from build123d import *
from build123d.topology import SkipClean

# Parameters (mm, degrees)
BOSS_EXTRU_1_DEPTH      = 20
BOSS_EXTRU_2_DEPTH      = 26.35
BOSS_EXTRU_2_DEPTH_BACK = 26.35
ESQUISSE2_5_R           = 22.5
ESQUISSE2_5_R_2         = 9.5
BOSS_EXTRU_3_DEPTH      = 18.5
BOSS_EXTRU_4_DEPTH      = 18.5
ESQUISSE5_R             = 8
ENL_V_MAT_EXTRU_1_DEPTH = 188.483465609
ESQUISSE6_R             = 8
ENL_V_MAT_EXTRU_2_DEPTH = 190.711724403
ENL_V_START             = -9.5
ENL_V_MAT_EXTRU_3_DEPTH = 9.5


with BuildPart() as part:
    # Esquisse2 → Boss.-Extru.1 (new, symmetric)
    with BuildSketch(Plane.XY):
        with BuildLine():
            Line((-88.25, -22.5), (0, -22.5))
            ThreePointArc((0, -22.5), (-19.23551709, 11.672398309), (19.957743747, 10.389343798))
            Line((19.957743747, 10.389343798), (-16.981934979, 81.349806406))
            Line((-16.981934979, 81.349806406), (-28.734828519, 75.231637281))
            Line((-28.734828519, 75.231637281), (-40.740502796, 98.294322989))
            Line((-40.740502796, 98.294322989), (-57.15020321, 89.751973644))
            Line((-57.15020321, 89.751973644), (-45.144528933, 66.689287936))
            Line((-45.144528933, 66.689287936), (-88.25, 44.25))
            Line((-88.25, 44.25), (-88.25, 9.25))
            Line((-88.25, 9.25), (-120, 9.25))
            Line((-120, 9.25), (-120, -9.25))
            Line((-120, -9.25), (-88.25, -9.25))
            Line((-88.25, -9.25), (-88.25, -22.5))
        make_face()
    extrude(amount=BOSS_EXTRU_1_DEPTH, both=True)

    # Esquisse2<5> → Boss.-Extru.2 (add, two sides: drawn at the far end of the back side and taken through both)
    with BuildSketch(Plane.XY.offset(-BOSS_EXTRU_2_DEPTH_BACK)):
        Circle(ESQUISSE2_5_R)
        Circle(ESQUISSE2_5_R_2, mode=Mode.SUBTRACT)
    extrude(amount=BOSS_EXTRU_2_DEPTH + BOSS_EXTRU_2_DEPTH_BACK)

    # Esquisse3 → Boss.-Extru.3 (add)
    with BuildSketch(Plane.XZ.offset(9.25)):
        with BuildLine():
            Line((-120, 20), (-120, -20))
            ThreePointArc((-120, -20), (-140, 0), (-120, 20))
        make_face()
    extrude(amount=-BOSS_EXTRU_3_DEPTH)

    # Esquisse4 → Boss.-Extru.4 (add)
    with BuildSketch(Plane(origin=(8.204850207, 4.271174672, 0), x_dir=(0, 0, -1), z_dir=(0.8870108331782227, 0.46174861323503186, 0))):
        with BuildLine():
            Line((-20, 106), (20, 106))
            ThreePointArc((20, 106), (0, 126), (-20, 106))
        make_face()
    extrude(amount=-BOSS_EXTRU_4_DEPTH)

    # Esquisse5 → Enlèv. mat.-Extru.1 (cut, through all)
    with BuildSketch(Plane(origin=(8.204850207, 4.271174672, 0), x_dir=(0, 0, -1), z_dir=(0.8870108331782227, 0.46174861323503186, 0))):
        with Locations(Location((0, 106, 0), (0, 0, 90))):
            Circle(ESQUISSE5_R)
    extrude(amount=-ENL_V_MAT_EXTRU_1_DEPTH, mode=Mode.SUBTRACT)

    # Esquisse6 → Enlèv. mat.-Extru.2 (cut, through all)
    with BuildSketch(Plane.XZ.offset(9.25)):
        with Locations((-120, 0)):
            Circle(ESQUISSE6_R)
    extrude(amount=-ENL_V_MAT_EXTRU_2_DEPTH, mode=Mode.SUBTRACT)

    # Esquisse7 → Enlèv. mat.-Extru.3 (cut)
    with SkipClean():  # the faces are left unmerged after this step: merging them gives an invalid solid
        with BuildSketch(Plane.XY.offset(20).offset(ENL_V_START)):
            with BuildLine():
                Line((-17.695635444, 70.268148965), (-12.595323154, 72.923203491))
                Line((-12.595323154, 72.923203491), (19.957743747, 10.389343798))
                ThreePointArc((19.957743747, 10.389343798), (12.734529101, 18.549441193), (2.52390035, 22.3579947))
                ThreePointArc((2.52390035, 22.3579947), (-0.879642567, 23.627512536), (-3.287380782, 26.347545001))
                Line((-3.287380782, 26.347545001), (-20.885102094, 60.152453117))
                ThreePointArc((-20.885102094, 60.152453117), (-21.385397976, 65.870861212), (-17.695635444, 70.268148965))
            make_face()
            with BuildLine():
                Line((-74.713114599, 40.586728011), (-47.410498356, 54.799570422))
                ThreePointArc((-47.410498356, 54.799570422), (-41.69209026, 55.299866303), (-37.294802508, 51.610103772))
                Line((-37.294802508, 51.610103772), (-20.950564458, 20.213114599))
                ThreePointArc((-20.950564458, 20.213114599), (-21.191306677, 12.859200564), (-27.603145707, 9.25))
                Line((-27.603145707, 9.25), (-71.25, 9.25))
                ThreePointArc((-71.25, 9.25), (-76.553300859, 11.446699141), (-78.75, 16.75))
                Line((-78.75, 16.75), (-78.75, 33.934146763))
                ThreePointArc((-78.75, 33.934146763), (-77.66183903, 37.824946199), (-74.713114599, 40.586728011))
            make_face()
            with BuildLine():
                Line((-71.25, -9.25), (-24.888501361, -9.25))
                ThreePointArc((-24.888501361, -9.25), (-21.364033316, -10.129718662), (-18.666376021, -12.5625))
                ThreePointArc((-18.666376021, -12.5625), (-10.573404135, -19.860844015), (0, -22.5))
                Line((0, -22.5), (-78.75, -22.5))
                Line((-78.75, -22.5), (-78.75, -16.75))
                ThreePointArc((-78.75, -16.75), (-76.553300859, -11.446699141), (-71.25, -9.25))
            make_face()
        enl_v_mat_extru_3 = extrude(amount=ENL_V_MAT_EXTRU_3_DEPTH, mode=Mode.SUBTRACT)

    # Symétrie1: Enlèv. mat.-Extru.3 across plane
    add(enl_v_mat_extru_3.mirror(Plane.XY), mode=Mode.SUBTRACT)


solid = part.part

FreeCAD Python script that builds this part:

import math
import FreeCAD as App
import Part
import Sketcher
Q = App.Units.Quantity

doc = App.newDocument("Part")
body = doc.addObject("PartDesign::Body", "Body")

# Sketch on XY plane
sketch1 = body.newObject("Sketcher::SketchObject", "Sketch")
sketch1.AttachmentSupport = (doc.getObject("XY_Plane"), [""])
sketch1.MapMode = "FlatFace"
sketch1.addGeometry([
    Part.LineSegment(App.Vector(-88, -22, 0), App.Vector(0, -22, 0)),  # 0
    Part.ArcOfCircle(Part.Circle(App.Vector(0, 0, 0), App.Vector(0, 0, 1), 22), math.radians(27), math.radians(270)),  # 1
    Part.LineSegment(App.Vector(20, 10, 0), App.Vector(-17, 81, 0)),  # 2
    Part.LineSegment(App.Vector(-17, 81, 0), App.Vector(-29, 75, 0)),  # 3
    Part.LineSegment(App.Vector(-29, 75, 0), App.Vector(-41, 98, 0)),  # 4
    Part.LineSegment(App.Vector(-41, 98, 0), App.Vector(-57, 90, 0)),  # 5
    Part.LineSegment(App.Vector(-57, 90, 0), App.Vector(-45, 67, 0)),  # 6
    Part.LineSegment(App.Vector(-45, 67, 0), App.Vector(-88, 44, 0)),  # 7
    Part.LineSegment(App.Vector(-88, 44, 0), App.Vector(-88, 9, 0)),  # 8
    Part.LineSegment(App.Vector(-88, 9, 0), App.Vector(-120, 9, 0)),  # 9
    Part.LineSegment(App.Vector(-120, 9, 0), App.Vector(-120, -9, 0)),  # 10
    Part.LineSegment(App.Vector(-120, -9, 0), App.Vector(-88, -9, 0)),  # 11
    Part.LineSegment(App.Vector(-88, -9, 0), App.Vector(-88, -22, 0)),  # 12
], False)
sketch1.addConstraint([
    Sketcher.Constraint("Tangent", 0, 2, 1, 2),
    Sketcher.Constraint("Tangent", 1, 1, 2, 1),
    Sketcher.Constraint("Coincident", 2, 2, 3, 1),
    Sketcher.Constraint("Coincident", 3, 2, 4, 1),
    Sketcher.Constraint("Coincident", 4, 2, 5, 1),
    Sketcher.Constraint("Coincident", 5, 2, 6, 1),
    Sketcher.Constraint("Coincident", 6, 2, 7, 1),
    Sketcher.Constraint("Coincident", 7, 2, 8, 1),
    Sketcher.Constraint("Coincident", 8, 2, 9, 1),
    Sketcher.Constraint("Coincident", 9, 2, 10, 1),
    Sketcher.Constraint("Coincident", 10, 2, 11, 1),
    Sketcher.Constraint("Coincident", 11, 2, 12, 1),
    Sketcher.Constraint("Coincident", 12, 2, 0, 1),
    Sketcher.Constraint("Horizontal", 0),
    Sketcher.Constraint("Vertical", 8),
    Sketcher.Constraint("Horizontal", 9),
    Sketcher.Constraint("Vertical", 10),
    Sketcher.Constraint("Horizontal", 11),
    Sketcher.Constraint("Vertical", 12),
    Sketcher.Constraint("Coincident", 1, 3, -1, 1),
    Sketcher.Constraint("Symmetric", 8, 2, 11, 2, -1),
    Sketcher.Constraint("Perpendicular", 2, 3),
    Sketcher.Constraint("Perpendicular", 3, 4),
    Sketcher.Constraint("Perpendicular", 4, 5),
    Sketcher.Constraint("Perpendicular", 5, 6),
    Sketcher.Constraint("Perpendicular", 6, 7),
    Sketcher.Constraint("Equal", 4, 6),
    Sketcher.Constraint("Radius", 1, 22.5),
    Sketcher.Constraint("DistanceY", 8, 2, 8, 1, 35.0),
    Sketcher.Constraint("DistanceY", 10, 2, 10, 1, 18.5),
    Sketcher.Constraint("DistanceX", 9, 2, -1, 1, 120.0),
    Sketcher.Constraint("Angle", 2, Q("117.5 deg")),
    Sketcher.Constraint("Distance", 5, 18.5),
    Sketcher.Constraint("DistanceX", 0, 1, 0, 2, 88.25),
    Sketcher.Constraint("Distance", 3, 13.25),
    Sketcher.Constraint("DistanceY", 1, 1, 4, 2, 87.904979),
])
pad1 = body.newObject("PartDesign::Pad", "Pad")
pad1.Profile = sketch1
pad1.Length = 40
pad1.Midplane = True

# Sketch on XY plane
sketch2 = body.newObject("Sketcher::SketchObject", "Sketch001")
sketch2.AttachmentSupport = (doc.getObject("XY_Plane"), [""])
sketch2.MapMode = "FlatFace"
sketch2.addGeometry([
    Part.Circle(App.Vector(0, 0, 0), App.Vector(0, 0, 1), 22),
    Part.Circle(App.Vector(0, 0, 0), App.Vector(0, 0, 1), 10),
], False)
sketch2.addConstraint([
    Sketcher.Constraint("Coincident", 0, 3, -1, 1),
    Sketcher.Constraint("Coincident", 1, 3, -1, 1),
    Sketcher.Constraint("Diameter", 0, 45.0),
    Sketcher.Constraint("Diameter", 1, 19.0),
])
pad2 = body.newObject("PartDesign::Pad", "Pad001")
pad2.Profile = sketch2
pad2.Type = "TwoLengths"
pad2.Length = 26.35
pad2.Length2 = 26.35

# Sketch on XZ plane
sketch3 = body.newObject("Sketcher::SketchObject", "Sketch002")
sketch3.AttachmentSupport = (doc.getObject("XZ_Plane"), [""])
sketch3.MapMode = "FlatFace"
sketch3.AttachmentOffset = App.Placement(App.Vector(0, 0, 9.25), App.Rotation())
sketch3.addGeometry([
    Part.LineSegment(App.Vector(-120, -20, 0), App.Vector(-120, 20, 0)),
    Part.ArcOfCircle(Part.Circle(App.Vector(-120, 0, 0), App.Vector(0, 0, 1), 20), math.radians(90), math.radians(270)),
], False)
sketch3.addConstraint([
    Sketcher.Constraint("Coincident", 0, 1, 1, 2),
    Sketcher.Constraint("Coincident", 1, 1, 0, 2),
    Sketcher.Constraint("Vertical", 0),
    Sketcher.Constraint("PointOnObject", 1, 3, -1),
    Sketcher.Constraint("Vertical", 1, 3, 0, 1),
    Sketcher.Constraint("Radius", 1, 20.0),
    Sketcher.Constraint("DistanceX", 1, 3, -1, 1, 120.0),
])
pad3 = body.newObject("PartDesign::Pad", "Pad002")
pad3.Profile = sketch3
pad3.Length = 18.5
pad3.Reversed = True

# Sketch on an angled plane
sketch4 = body.newObject("Sketcher::SketchObject", "Sketch003")
sketch4.Placement = App.Placement(App.Vector(8.20485, 4.271175, 0), App.Rotation(App.Vector(0, 0, -1), App.Vector(-0.461748613, 0.887010833, 0), App.Vector(0.887010833, 0.461748613, 0), "ZXY"))
sketch4.addGeometry([
    Part.LineSegment(App.Vector(-20, 106, 0), App.Vector(20, 106, 0)),
    Part.ArcOfCircle(Part.Circle(App.Vector(0, 106, 0), App.Vector(0, 0, 1), 20), math.radians(0), math.radians(180)),
], False)
sketch4.addConstraint([
    Sketcher.Constraint("Coincident", 0, 1, 1, 2),
    Sketcher.Constraint("Coincident", 1, 1, 0, 2),
    Sketcher.Constraint("Horizontal", 0),
    Sketcher.Constraint("PointOnObject", 1, 3, -2),
    Sketcher.Constraint("Horizontal", 1, 3, 0, 1),
    Sketcher.Constraint("Radius", 1, 20.0),
    Sketcher.Constraint("DistanceY", -1, 1, 1, 3, 106.0),
])
pad4 = body.newObject("PartDesign::Pad", "Pad003")
pad4.Profile = sketch4
pad4.Length = 18.5
pad4.Reversed = True

# Sketch on an angled plane
sketch5 = body.newObject("Sketcher::SketchObject", "Sketch004")
sketch5.Placement = App.Placement(App.Vector(8.20485, 4.271175, 0), App.Rotation(App.Vector(0, 0, -1), App.Vector(-0.461748613, 0.887010833, 0), App.Vector(0.887010833, 0.461748613, 0), "ZXY"))
sketch5.addGeometry(Part.Circle(App.Vector(0, 106, 0), App.Vector(0, 0, 1), 8), False)
sketch5.addConstraint([
    Sketcher.Constraint("PointOnObject", 0, 3, -2),
    Sketcher.Constraint("Diameter", 0, 16.0),
    Sketcher.Constraint("DistanceY", -1, 1, 0, 3, 106.0),
])
pocket1 = body.newObject("PartDesign::Pocket", "Pocket")
pocket1.Profile = sketch5
pocket1.Type = "ThroughAll"

# Sketch on XZ plane
sketch6 = body.newObject("Sketcher::SketchObject", "Sketch005")
sketch6.AttachmentSupport = (doc.getObject("XZ_Plane"), [""])
sketch6.MapMode = "FlatFace"
sketch6.AttachmentOffset = App.Placement(App.Vector(0, 0, 9.25), App.Rotation())
sketch6.addGeometry(Part.Circle(App.Vector(-120, 0, 0), App.Vector(0, 0, 1), 8), False)
sketch6.addConstraint([
    Sketcher.Constraint("PointOnObject", 0, 3, -1),
    Sketcher.Constraint("Diameter", 0, 16.0),
    Sketcher.Constraint("DistanceX", 0, 3, -1, 1, 120.0),
])
pocket2 = body.newObject("PartDesign::Pocket", "Pocket001")
pocket2.Profile = sketch6
pocket2.Type = "ThroughAll"

# Sketch on XY plane
sketch7 = body.newObject("Sketcher::SketchObject", "Sketch006")
sketch7.AttachmentSupport = (doc.getObject("XY_Plane"), [""])
sketch7.MapMode = "FlatFace"
sketch7.AttachmentOffset = App.Placement(App.Vector(0, 0, 10.5), App.Rotation())
sketch7.addGeometry([
    Part.LineSegment(App.Vector(-13, 73, 0), App.Vector(-18, 70, 0)),  # 0
    Part.ArcOfCircle(Part.Circle(App.Vector(-14, 64, 0), App.Vector(0, 0, 1), 7), math.radians(117), math.radians(208)),  # 1
    Part.LineSegment(App.Vector(-21, 60, 0), App.Vector(-3, 26, 0)),  # 2
    Part.ArcOfCircle(Part.Circle(App.Vector(3, 30, 0), App.Vector(0, 0, 1), 8), math.radians(-152), math.radians(-96)),  # 3
    Part.ArcOfCircle(Part.Circle(App.Vector(0, 0, 0), App.Vector(0, 0, 1), 23), math.radians(28), math.radians(84)),  # 4
    Part.LineSegment(App.Vector(20, 10, 0), App.Vector(-13, 73, 0)),  # 5
    Part.LineSegment(App.Vector(-47, 55, 0), App.Vector(-75, 41, 0)),  # 6
    Part.ArcOfCircle(Part.Circle(App.Vector(-71, 34, 0), App.Vector(0, 0, 1), 7), math.radians(117), math.radians(180)),  # 7
    Part.LineSegment(App.Vector(-79, 34, 0), App.Vector(-79, 17, 0)),  # 8
    Part.ArcOfCircle(Part.Circle(App.Vector(-71, 17, 0), App.Vector(0, 0, 1), 8), math.radians(180), math.radians(270)),  # 9
    Part.LineSegment(App.Vector(-71, 9, 0), App.Vector(-28, 9, 0)),  # 10
    Part.ArcOfCircle(Part.Circle(App.Vector(-28, 17, 0), App.Vector(0, 0, 1), 8), math.radians(-90), math.radians(27)),  # 11
    Part.LineSegment(App.Vector(-21, 20, 0), App.Vector(-37, 52, 0)),  # 12
    Part.ArcOfCircle(Part.Circle(App.Vector(-44, 48, 0), App.Vector(0, 0, 1), 8), math.radians(28), math.radians(117)),  # 13
    Part.LineSegment(App.Vector(-25, -9, 0), App.Vector(-71, -9, 0)),  # 14
    Part.ArcOfCircle(Part.Circle(App.Vector(-71, -17, 0), App.Vector(0, 0, 1), 8), math.radians(90), math.radians(180)),  # 15
    Part.LineSegment(App.Vector(-79, -17, 0), App.Vector(-79, -22, 0)),  # 16
    Part.LineSegment(App.Vector(-79, -22, 0), App.Vector(0, -22, 0)),  # 17
    Part.ArcOfCircle(Part.Circle(App.Vector(0, 0, 0), App.Vector(0, 0, 1), 23), math.radians(-146), math.radians(-90)),  # 18
    Part.ArcOfCircle(Part.Circle(App.Vector(-25, -17, 0), App.Vector(0, 0, 1), 8), math.radians(34), math.radians(90)),  # 19
], False)
sketch7.addConstraint([
    Sketcher.Constraint("Tangent", 0, 2, 1, 1),
    Sketcher.Constraint("Tangent", 1, 2, 2, 1),
    Sketcher.Constraint("Tangent", 2, 2, 3, 1),
    Sketcher.Constraint("Tangent", 3, 2, 4, 2),
    Sketcher.Constraint("Tangent", 4, 1, 5, 1),
    Sketcher.Constraint("Coincident", 5, 2, 0, 1),
    Sketcher.Constraint("Tangent", 6, 2, 7, 1),
    Sketcher.Constraint("Tangent", 7, 2, 8, 1),
    Sketcher.Constraint("Tangent", 8, 2, 9, 1),
    Sketcher.Constraint("Tangent", 9, 2, 10, 1),
    Sketcher.Constraint("Tangent", 10, 2, 11, 1),
    Sketcher.Constraint("Tangent", 11, 2, 12, 1),
    Sketcher.Constraint("Tangent", 12, 2, 13, 1),
    Sketcher.Constraint("Tangent", 13, 2, 6, 1),
    Sketcher.Constraint("Tangent", 14, 2, 15, 1),
    Sketcher.Constraint("Tangent", 15, 2, 16, 1),
    Sketcher.Constraint("Coincident", 16, 2, 17, 1),
    Sketcher.Constraint("Tangent", 17, 2, 18, 2),
    Sketcher.Constraint("Tangent", 18, 1, 19, 1),
    Sketcher.Constraint("Tangent", 19, 2, 14, 1),
    Sketcher.Constraint("Vertical", 8),
    Sketcher.Constraint("Horizontal", 10),
    Sketcher.Constraint("Horizontal", 14),
    Sketcher.Constraint("Vertical", 16),
    Sketcher.Constraint("Horizontal", 17),
    Sketcher.Constraint("Coincident", 4, 3, -1, 1),
    Sketcher.Constraint("Coincident", 18, 3, -1, 1),
    Sketcher.Constraint("Equal", 1, 3),
    Sketcher.Constraint("Equal", 3, 7),
    Sketcher.Constraint("Equal", 7, 9),
    Sketcher.Constraint("Equal", 9, 11),
    Sketcher.Constraint("Equal", 11, 13),
    Sketcher.Constraint("Equal", 13, 15),
    Sketcher.Constraint("Equal", 4, 18),
    Sketcher.Constraint("Equal", 15, 19),
    Sketcher.Constraint("Symmetric", 9, 3, 15, 3, -1),
    Sketcher.Constraint("Perpendicular", 0, 2),
    Sketcher.Constraint("Parallel", 2, 5),
    Sketcher.Constraint("Perpendicular", 5, 6),
    Sketcher.Constraint("Perpendicular", 6, 12),
    Sketcher.Constraint("Radius", 1, 7.5),
    Sketcher.Constraint("Radius", 4, 22.5),
    Sketcher.Constraint("Angle", 0, Q("-152.5 deg")),
    Sketcher.Constraint("DistanceY", 15, 3, 9, 2, 26.0),
    Sketcher.Constraint("DistanceX", 17, 1, 17, 2, 78.75),
    Sketcher.Constraint("Distance", 0, 5.75),
    Sketcher.Constraint("Distance", 12, 35.396399),
    Sketcher.Constraint("DistanceX", 13, 2, -1, 1, 47.410498),
    Sketcher.Constraint("DistanceX", 12, 2, 1, 2, 16.4097),
])
pocket3 = body.newObject("PartDesign::Pocket", "Pocket002")
pocket3.Profile = sketch7
pocket3.Length = 9.5
pocket3.Reversed = True
doc.recompute()

mirrored = body.newObject("PartDesign::Mirrored", "Mirrored")
mirrored.Originals = [pocket3]
mirrored.MirrorPlane = (doc.getObject("XY_Plane"), [""])
body.Tip = mirrored

doc.recompute()
